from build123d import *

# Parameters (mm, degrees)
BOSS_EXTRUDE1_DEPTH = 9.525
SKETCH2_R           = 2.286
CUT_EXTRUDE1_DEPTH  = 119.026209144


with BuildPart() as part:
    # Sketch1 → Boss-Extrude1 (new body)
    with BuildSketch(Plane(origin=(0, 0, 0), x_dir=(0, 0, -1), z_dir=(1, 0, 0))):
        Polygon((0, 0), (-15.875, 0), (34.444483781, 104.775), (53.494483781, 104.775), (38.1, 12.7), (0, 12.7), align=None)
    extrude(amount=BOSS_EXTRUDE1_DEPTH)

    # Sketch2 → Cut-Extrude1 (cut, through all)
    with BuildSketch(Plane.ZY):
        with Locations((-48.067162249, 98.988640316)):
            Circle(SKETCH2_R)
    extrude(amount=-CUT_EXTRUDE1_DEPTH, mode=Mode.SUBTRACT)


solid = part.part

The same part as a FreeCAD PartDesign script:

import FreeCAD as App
import Part
import Sketcher

V = App.Vector
Q = App.Units.Quantity

doc = App.newDocument("Part")
body = doc.addObject("PartDesign::Body", "Body")

# Sketch on YZ plane
sketch1 = doc.addObject("Sketcher::SketchObject", "Sketch")
body.addObject(sketch1)
sketch1.AttachmentSupport = (doc.YZ_Plane, [""])
sketch1.MapMode = "FlatFace"
sketch1.addGeometry(Part.LineSegment(V(0, 16, 0), V(0, 0, 0)), False)
sketch1.addGeometry(Part.LineSegment(V(0, 0, 0), V(13, 0, 0)), False)
sketch1.addGeometry(Part.LineSegment(V(13, 0, 0), V(13, -38, 0)), False)
sketch1.addGeometry(Part.LineSegment(V(13, -38, 0), V(105, -53, 0)), False)
sketch1.addGeometry(Part.LineSegment(V(105, -53, 0), V(105, -34, 0)), False)
sketch1.addGeometry(Part.LineSegment(V(105, -34, 0), V(0, 16, 0)), False)
sketch1.addConstraint(Sketcher.Constraint("Coincident", 0, 2, 1, 1))
sketch1.addConstraint(Sketcher.Constraint("Coincident", 1, 2, 2, 1))
sketch1.addConstraint(Sketcher.Constraint("Coincident", 2, 2, 3, 1))
sketch1.addConstraint(Sketcher.Constraint("Coincident", 3, 2, 4, 1))
sketch1.addConstraint(Sketcher.Constraint("Coincident", 4, 2, 5, 1))
sketch1.addConstraint(Sketcher.Constraint("Coincident", 5, 2, 0, 1))
sketch1.addConstraint(Sketcher.Constraint("Vertical", 0))
sketch1.addConstraint(Sketcher.Constraint("Horizontal", 1))
sketch1.addConstraint(Sketcher.Constraint("Vertical", 2))
sketch1.addConstraint(Sketcher.Constraint("Vertical", 4))
sketch1.addConstraint(Sketcher.Constraint("Coincident", 0, 2, -1, 1))
sketch1.addConstraint(Sketcher.Constraint("DistanceX", 1, 1, 1, 2, Q("0.5 in")))
sketch1.addConstraint(Sketcher.Constraint("DistanceY", 2, 2, 2, 1, Q("1.5 in")))
sketch1.addConstraint(Sketcher.Constraint("DistanceY", 4, 1, 4, 2, Q("0.75 in")))
sketch1.addConstraint(Sketcher.Constraint("DistanceY", 0, 2, 0, 1, Q("0.625 in")))
sketch1.addConstraint(Sketcher.Constraint("DistanceX", -1, 1, 3, 2, Q("4.125 in")))
sketch1.addConstraint(Sketcher.Constraint("Distance", 3, 93.35307))
pad1 = doc.addObject("PartDesign::Pad", "Pad")
body.addObject(pad1)
pad1.Profile = sketch1
pad1.Length = Q("0.375 in")

# Sketch on YZ plane
sketch2 = doc.addObject("Sketcher::SketchObject", "Sketch001")
body.addObject(sketch2)
sketch2.AttachmentSupport = (doc.YZ_Plane, [""])
sketch2.MapMode = "FlatFace"
sketch2.addGeometry(Part.Circle(V(99, -48.1, 0), V(0, 0, 1), 2.3), False)
sketch2.addConstraint(Sketcher.Constraint("Diameter", 0, Q("0.18 in")))
sketch2.addConstraint(Sketcher.Constraint("DistanceX", -1, 1, 0, 3, 98.98864))
sketch2.addConstraint(Sketcher.Constraint("DistanceY", 0, 3, -1, 1, 48.067162))
pocket1 = doc.addObject("PartDesign::Pocket", "Pocket")
body.addObject(pocket1)
pocket1.Profile = sketch2
pocket1.Type = "ThroughAll"
pocket1.Reversed = True

doc.recompute()
